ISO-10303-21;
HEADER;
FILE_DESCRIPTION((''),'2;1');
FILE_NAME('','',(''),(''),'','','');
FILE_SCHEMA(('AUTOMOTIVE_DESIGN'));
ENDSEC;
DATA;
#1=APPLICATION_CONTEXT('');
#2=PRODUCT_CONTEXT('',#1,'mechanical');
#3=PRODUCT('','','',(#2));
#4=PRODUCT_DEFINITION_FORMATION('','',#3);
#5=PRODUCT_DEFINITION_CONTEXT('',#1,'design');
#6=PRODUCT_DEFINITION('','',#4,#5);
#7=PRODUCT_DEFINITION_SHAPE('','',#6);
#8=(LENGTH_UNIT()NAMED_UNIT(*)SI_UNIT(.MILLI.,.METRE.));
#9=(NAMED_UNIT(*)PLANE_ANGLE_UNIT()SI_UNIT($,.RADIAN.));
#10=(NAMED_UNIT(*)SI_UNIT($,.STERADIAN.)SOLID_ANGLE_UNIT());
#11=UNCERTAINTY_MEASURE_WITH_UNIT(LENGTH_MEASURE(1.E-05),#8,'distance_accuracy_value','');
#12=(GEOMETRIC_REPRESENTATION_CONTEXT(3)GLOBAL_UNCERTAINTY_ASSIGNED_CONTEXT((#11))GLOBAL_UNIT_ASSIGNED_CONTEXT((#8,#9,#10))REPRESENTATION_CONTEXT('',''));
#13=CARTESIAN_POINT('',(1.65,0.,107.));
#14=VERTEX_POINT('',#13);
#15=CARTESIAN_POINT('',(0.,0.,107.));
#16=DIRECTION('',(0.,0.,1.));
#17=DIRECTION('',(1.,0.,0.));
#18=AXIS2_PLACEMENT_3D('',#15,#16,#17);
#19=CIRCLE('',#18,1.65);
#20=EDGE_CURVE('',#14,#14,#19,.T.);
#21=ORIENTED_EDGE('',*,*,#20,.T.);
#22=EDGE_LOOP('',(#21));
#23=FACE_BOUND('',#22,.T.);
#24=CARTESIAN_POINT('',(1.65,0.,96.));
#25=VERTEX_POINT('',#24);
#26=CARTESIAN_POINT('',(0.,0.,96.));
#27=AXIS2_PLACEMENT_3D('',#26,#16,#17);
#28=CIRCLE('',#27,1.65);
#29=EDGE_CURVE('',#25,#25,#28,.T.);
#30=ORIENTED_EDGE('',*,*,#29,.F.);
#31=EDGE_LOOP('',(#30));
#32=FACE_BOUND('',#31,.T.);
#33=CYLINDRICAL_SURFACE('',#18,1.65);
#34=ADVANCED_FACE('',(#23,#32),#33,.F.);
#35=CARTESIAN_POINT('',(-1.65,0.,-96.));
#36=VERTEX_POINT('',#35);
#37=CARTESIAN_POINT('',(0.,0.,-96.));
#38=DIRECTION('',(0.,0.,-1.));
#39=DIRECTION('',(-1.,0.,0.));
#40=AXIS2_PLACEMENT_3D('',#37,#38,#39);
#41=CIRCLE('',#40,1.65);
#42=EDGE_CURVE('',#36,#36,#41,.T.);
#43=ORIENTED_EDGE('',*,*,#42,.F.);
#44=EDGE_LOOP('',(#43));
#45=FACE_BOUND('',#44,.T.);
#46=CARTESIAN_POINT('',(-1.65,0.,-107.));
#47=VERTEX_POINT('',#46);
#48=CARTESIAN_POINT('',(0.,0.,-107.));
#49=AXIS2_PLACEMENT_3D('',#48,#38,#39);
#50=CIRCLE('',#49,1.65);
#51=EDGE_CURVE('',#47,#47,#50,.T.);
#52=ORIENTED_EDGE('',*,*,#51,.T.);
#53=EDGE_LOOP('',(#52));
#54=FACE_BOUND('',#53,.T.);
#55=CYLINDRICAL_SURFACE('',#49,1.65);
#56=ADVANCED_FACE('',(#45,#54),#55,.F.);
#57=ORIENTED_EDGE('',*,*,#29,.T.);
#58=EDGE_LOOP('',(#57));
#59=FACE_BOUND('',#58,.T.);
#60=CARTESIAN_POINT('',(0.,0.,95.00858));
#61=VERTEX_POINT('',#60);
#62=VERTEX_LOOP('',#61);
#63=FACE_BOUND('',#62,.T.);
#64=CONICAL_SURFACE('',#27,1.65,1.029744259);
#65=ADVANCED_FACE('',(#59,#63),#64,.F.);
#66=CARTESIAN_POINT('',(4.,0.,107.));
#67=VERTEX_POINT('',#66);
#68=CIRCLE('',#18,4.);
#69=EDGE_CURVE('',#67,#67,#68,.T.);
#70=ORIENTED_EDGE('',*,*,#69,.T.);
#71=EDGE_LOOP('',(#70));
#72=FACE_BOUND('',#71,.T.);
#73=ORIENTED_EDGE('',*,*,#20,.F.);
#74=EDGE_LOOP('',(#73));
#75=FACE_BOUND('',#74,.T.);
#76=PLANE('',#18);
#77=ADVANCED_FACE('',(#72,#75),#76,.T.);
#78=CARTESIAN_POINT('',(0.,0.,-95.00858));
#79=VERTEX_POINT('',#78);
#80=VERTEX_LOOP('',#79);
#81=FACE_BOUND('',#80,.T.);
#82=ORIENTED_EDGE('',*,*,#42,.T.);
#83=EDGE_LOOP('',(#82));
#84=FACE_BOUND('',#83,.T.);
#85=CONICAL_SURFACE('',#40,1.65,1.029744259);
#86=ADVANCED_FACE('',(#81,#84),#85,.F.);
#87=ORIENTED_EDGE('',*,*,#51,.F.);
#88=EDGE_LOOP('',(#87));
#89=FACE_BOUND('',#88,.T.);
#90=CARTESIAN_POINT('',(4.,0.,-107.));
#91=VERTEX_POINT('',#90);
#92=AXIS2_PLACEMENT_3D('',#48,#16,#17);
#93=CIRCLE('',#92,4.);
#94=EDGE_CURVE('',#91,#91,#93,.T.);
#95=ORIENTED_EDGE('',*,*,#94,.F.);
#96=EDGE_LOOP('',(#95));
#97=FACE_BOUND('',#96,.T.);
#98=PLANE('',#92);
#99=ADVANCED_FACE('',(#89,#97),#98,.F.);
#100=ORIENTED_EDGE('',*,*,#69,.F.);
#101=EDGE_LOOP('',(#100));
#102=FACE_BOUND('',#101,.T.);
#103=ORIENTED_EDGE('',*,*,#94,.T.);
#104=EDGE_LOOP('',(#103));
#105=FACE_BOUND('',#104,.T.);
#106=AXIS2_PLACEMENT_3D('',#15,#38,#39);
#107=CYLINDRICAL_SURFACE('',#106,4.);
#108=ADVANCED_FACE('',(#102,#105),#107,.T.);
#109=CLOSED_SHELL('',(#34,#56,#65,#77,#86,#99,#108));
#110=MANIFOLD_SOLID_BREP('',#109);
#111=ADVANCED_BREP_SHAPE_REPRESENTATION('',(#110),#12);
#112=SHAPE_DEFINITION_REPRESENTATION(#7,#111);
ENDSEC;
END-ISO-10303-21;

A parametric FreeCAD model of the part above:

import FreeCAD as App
import Part
import Sketcher

V = App.Vector
Q = App.Units.Quantity

doc = App.newDocument("Part")
body = doc.addObject("PartDesign::Body", "Body")

# Sketch on XY plane
sketch1 = body.newObject("Sketcher::SketchObject", "Sketch")
sketch1.AttachmentSupport = (doc.getObject("XY_Plane"), [""])
sketch1.MapMode = "FlatFace"
sketch1.addGeometry(Part.Circle(V(0, 0, 0), V(0, 0, 1), 4), False)
sketch1.addConstraint([
    Sketcher.Constraint("Coincident", 0, 3, -1, 1),
    Sketcher.Constraint("Diameter", 0, Q("8 mm")),
])
pad1 = body.newObject("PartDesign::Pad", "Pad")
pad1.Profile = sketch1
pad1.Length = 214
pad1.Midplane = True

# Sketch on XY plane
sketch2 = body.newObject("Sketcher::SketchObject", "Sketch001")
sketch2.AttachmentSupport = (doc.getObject("XY_Plane"), [""])
sketch2.MapMode = "FlatFace"
sketch2.AttachmentOffset = App.Placement(V(0, 0, -107), App.Rotation())
sketch2.addGeometry(Part.Circle(V(0, 0, 0), V(0, 0, 1), 1.6), False)
sketch2.addConstraint([
    Sketcher.Constraint("Coincident", 0, 3, -1, 1),
    Sketcher.Constraint("Diameter", 0, Q("3.3 mm")),
])
doc.recompute()
hole = body.newObject("PartDesign::Hole", "Hole")
hole.Profile = sketch2
hole.ThreadType = "None"
hole.Diameter = 3.3
hole.DepthType = "Dimension"
hole.Depth = 11
hole.DrillPoint = "Angled"
hole.DrillPointAngle = 118
hole.Reversed = True

# Sketch on XY plane
sketch3 = body.newObject("Sketcher::SketchObject", "Sketch002")
sketch3.AttachmentSupport = (doc.getObject("XY_Plane"), [""])
sketch3.MapMode = "FlatFace"
sketch3.AttachmentOffset = App.Placement(V(0, 0, 107), App.Rotation())
sketch3.addGeometry(Part.Circle(V(0, 0, 0), V(0, 0, 1), 1.6), False)
sketch3.addConstraint([
    Sketcher.Constraint("Coincident", 0, 3, -1, 1),
    Sketcher.Constraint("Diameter", 0, Q("3.3 mm")),
])
doc.recompute()
hole2 = body.newObject("PartDesign::Hole", "Hole001")
hole2.Profile = sketch3
hole2.ThreadType = "None"
hole2.Diameter = 3.3
hole2.DepthType = "Dimension"
hole2.Depth = 11
hole2.DrillPoint = "Angled"
hole2.DrillPointAngle = 118

doc.recompute()
